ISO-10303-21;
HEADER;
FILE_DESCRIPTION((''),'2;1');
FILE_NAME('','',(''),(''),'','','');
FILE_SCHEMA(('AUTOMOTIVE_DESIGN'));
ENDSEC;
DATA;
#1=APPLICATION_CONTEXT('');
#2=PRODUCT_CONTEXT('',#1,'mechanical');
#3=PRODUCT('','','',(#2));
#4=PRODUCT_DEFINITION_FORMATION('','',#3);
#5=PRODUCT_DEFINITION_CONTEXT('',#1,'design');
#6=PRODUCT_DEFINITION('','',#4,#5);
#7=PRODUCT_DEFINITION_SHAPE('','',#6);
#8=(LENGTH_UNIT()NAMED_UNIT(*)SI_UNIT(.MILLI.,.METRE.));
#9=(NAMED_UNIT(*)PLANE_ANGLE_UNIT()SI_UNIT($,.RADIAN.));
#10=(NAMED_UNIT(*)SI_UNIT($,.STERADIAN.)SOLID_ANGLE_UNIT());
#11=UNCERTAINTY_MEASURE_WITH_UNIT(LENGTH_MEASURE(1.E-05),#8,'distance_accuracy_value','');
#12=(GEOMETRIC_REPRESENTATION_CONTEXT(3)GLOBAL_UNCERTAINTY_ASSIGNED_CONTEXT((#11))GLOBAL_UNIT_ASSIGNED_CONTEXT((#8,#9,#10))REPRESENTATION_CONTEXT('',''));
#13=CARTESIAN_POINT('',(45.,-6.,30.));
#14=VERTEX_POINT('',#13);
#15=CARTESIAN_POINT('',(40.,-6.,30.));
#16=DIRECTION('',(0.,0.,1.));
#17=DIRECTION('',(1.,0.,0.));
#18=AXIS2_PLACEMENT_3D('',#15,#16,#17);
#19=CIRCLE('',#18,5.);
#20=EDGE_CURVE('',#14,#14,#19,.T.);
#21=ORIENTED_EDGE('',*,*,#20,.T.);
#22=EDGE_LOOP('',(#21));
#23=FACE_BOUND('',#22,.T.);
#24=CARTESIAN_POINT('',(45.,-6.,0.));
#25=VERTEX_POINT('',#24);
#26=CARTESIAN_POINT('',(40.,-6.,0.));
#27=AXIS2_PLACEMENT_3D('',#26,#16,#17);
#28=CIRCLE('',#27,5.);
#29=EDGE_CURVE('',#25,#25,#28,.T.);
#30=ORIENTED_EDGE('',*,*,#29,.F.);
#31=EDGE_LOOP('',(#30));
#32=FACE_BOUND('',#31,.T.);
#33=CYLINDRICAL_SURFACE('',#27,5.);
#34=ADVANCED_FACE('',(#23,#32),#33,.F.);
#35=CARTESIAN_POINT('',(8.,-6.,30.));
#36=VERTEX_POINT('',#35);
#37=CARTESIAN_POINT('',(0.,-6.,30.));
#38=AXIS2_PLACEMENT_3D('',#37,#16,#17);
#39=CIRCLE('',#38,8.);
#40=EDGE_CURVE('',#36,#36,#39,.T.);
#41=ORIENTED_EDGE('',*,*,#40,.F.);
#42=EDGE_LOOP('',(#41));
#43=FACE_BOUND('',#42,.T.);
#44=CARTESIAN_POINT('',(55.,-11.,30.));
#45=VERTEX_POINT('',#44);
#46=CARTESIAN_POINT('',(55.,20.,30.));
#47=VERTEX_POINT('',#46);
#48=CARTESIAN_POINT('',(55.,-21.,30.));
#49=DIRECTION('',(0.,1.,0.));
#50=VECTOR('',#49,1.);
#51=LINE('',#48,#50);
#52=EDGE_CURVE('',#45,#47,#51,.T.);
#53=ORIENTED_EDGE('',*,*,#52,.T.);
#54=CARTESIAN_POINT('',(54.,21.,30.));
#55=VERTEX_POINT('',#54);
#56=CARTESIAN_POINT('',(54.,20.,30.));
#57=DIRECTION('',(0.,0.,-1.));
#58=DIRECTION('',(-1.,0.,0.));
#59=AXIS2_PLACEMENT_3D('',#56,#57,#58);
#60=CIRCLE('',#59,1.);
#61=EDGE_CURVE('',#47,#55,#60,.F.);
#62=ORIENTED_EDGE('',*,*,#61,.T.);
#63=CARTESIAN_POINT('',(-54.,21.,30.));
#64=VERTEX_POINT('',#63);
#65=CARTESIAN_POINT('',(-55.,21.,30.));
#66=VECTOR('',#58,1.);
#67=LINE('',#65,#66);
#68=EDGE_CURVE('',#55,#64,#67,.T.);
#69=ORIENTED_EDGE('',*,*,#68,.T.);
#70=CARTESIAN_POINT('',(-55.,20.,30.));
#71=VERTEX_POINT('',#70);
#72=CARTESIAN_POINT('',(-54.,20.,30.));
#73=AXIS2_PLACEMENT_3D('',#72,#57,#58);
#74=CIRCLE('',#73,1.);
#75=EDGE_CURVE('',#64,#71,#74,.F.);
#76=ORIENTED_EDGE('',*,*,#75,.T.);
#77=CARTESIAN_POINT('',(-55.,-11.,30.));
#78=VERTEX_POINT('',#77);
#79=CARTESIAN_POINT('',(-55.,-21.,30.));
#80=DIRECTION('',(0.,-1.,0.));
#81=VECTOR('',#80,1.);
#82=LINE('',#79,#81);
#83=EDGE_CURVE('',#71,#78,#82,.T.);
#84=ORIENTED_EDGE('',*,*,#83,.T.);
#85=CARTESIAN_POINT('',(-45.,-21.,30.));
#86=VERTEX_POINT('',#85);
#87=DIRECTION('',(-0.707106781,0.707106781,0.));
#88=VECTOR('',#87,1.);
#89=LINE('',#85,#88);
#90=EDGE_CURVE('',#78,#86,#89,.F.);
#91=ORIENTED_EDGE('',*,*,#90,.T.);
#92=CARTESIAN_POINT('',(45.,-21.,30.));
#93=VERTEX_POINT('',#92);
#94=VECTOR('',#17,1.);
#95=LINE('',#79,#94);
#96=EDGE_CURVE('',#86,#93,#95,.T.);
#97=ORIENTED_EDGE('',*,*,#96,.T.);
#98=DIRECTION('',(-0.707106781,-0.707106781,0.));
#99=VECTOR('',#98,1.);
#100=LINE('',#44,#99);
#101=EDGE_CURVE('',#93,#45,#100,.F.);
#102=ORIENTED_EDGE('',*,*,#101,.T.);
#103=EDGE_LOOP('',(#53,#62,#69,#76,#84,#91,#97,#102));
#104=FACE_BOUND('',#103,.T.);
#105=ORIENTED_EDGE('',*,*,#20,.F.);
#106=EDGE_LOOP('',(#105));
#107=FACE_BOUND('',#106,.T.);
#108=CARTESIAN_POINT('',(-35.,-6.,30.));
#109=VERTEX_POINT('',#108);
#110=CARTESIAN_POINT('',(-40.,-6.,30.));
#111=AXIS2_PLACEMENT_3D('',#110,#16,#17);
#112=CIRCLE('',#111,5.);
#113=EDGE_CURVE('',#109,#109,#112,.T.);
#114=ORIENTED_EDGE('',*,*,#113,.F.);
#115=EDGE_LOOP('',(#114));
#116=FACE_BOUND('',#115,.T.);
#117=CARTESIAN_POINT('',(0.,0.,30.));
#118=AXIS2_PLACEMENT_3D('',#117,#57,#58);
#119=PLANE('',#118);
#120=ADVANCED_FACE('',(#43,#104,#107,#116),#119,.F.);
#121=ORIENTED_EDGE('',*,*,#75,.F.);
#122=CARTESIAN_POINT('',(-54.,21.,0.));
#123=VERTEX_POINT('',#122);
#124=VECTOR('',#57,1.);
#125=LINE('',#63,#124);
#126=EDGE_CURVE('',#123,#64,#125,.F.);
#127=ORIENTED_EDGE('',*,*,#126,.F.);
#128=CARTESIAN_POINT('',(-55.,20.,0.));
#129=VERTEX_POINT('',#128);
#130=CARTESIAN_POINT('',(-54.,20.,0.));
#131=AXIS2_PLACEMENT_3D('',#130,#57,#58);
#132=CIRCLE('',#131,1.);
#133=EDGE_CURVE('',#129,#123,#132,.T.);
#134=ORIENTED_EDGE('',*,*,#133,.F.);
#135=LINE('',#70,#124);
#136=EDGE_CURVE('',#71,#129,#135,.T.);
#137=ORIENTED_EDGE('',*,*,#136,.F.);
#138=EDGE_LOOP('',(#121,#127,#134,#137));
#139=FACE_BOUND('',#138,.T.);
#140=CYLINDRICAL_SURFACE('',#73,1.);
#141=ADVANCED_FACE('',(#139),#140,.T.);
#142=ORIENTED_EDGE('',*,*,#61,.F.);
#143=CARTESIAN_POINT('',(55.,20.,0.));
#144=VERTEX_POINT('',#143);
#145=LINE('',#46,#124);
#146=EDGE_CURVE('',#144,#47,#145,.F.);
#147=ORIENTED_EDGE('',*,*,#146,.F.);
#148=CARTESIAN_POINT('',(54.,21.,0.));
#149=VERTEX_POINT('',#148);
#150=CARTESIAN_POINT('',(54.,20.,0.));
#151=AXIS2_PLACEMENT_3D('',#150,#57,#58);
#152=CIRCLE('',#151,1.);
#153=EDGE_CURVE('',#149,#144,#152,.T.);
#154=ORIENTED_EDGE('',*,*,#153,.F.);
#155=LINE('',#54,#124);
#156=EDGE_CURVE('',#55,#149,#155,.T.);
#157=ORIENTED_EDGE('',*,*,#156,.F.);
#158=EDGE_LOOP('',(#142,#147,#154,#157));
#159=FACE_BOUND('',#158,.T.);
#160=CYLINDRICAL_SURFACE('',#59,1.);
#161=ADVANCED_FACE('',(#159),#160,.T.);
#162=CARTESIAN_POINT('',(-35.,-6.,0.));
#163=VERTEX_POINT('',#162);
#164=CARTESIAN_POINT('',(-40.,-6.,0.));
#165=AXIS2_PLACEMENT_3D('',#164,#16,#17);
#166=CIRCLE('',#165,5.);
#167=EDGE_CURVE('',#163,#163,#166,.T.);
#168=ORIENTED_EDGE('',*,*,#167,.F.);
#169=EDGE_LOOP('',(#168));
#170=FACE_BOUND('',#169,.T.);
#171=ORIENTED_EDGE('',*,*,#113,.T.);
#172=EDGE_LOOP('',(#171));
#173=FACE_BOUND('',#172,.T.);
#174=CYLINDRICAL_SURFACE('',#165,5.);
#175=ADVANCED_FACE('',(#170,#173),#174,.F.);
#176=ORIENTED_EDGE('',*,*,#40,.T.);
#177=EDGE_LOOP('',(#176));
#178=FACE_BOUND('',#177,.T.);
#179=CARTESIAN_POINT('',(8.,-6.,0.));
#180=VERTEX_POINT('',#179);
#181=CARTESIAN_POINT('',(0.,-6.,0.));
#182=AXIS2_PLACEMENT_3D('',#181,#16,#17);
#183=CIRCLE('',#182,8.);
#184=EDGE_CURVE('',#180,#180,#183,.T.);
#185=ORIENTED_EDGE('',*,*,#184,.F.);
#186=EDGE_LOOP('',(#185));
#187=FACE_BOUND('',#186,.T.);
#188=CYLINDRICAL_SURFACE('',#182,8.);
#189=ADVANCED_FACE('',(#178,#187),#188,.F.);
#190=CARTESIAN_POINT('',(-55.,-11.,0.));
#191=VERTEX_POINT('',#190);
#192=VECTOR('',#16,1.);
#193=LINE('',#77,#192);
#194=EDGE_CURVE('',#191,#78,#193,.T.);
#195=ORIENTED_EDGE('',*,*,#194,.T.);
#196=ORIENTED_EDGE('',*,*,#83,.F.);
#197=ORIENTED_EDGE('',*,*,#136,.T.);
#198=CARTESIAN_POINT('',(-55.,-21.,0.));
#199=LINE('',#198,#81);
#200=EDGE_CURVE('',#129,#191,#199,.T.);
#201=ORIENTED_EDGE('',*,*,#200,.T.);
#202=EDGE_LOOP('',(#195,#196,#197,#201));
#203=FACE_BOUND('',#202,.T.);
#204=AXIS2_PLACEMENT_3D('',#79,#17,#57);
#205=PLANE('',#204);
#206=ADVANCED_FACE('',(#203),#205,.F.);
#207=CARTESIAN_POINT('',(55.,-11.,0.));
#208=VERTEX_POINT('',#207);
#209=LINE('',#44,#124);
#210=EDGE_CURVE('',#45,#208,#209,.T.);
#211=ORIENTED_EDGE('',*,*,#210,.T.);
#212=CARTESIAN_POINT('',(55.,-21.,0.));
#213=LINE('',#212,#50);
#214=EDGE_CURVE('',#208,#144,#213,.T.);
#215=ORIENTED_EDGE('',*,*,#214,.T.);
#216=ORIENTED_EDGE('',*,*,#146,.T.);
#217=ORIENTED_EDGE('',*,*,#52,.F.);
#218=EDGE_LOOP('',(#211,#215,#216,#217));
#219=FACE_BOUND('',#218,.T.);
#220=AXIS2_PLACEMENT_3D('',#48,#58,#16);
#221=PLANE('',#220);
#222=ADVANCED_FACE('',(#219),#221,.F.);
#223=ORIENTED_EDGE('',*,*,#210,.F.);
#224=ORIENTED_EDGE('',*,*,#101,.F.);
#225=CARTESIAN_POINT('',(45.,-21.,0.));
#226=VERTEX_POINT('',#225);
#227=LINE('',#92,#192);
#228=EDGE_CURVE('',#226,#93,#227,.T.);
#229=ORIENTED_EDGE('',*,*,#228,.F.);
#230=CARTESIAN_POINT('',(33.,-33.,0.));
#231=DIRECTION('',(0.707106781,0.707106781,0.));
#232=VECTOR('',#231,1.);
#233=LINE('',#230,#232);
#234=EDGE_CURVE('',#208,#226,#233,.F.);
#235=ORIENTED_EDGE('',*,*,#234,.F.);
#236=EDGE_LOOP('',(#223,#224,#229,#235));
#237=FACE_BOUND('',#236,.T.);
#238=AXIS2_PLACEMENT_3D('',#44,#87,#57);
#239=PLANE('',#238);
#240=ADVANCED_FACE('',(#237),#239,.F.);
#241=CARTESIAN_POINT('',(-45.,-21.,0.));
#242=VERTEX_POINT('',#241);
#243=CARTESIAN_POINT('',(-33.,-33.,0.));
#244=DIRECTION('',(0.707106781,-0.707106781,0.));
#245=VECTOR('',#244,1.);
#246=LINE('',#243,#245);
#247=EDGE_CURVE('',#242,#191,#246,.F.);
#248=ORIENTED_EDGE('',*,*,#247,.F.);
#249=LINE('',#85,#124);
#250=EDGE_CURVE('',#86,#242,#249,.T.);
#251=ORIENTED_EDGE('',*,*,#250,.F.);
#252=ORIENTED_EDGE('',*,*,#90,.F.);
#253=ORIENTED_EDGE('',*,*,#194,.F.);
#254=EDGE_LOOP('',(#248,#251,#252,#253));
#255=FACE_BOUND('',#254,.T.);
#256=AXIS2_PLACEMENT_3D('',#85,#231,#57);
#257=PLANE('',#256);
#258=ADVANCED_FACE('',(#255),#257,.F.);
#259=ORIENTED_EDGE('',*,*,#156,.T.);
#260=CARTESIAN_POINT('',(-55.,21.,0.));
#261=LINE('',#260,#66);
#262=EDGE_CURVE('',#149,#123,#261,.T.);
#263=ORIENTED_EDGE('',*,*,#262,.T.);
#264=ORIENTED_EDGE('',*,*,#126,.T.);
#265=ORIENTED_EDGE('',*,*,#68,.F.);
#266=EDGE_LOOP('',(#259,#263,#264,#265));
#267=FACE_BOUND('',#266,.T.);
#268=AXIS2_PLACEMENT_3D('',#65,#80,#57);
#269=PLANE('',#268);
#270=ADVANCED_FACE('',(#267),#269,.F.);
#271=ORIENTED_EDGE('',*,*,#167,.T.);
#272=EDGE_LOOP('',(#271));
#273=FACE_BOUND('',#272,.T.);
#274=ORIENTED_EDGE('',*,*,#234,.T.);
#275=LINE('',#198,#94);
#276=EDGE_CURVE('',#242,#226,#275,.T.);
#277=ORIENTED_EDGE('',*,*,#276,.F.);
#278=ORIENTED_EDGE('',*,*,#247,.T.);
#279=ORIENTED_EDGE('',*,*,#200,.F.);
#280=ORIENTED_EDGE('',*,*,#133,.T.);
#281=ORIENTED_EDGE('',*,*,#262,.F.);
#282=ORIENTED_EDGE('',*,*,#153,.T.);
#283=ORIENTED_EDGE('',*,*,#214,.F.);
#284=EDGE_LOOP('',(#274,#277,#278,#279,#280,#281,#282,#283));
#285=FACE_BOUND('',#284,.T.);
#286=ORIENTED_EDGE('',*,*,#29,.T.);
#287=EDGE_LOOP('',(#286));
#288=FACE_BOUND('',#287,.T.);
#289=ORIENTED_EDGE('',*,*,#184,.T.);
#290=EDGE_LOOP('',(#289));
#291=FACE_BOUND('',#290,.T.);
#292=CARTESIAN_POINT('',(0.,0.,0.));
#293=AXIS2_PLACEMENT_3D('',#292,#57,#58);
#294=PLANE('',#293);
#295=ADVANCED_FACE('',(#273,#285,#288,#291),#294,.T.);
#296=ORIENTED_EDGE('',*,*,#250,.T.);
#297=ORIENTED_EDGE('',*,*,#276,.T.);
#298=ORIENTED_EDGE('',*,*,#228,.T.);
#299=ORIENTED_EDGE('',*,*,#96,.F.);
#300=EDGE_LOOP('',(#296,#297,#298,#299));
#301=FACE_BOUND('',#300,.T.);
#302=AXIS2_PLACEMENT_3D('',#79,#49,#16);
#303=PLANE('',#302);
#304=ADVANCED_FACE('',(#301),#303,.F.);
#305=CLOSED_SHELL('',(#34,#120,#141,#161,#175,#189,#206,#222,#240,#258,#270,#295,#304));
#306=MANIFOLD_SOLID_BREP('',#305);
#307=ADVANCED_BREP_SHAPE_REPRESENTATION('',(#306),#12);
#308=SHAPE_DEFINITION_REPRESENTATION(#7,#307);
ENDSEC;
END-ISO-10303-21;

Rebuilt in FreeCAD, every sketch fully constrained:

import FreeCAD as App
import Part
import Sketcher

V = App.Vector


def edges_at(feature, points):
    """Names of the edges that pass closest to the given points."""
    edges = feature.Shape.Edges
    near = lambda p: min(range(len(edges)), key=lambda i: edges[i].distToShape(Part.Vertex(*p))[0])
    return sorted({f"Edge{near(p) + 1}" for p in points})

doc = App.newDocument("Part")
params = doc.addObject("Spreadsheet::Sheet", "Params")
for row, (alias, value) in enumerate([
    ("sketch1_width", "110 mm"),
    ("sketch1_height", "42 mm"),
    ("pad1_length", "30 mm"),
    ("chamfer_size", "10 mm"),
    ("fillet_radius", "1 mm"),
    ("sketch2_diameter", "10 mm"),
    ("sketch2_diameter2", "16 mm"),
    ("pocket1_length", "30 mm"),
], start=1):
    params.set(f"A{row}", alias)
    params.set(f"B{row}", "=" + value)
    params.setAlias(f"B{row}", alias)

body = doc.addObject("PartDesign::Body", "Body")

# Sketch on XY plane
sketch1 = body.newObject("Sketcher::SketchObject", "Sketch")
sketch1.AttachmentSupport = (doc.getObject("XY_Plane"), [""])
sketch1.MapMode = "FlatFace"
sketch1.addGeometry(Part.LineSegment(V(-55, 21, 0), V(-55, -21, 0)), False)
sketch1.addGeometry(Part.LineSegment(V(-55, -21, 0), V(55, -21, 0)), False)
sketch1.addGeometry(Part.LineSegment(V(55, -21, 0), V(55, 21, 0)), False)
sketch1.addGeometry(Part.LineSegment(V(55, 21, 0), V(-55, 21, 0)), False)
sketch1.addConstraint(Sketcher.Constraint("Coincident", 0, 2, 1, 1))
sketch1.addConstraint(Sketcher.Constraint("Coincident", 1, 2, 2, 1))
sketch1.addConstraint(Sketcher.Constraint("Coincident", 2, 2, 3, 1))
sketch1.addConstraint(Sketcher.Constraint("Coincident", 3, 2, 0, 1))
sketch1.addConstraint(Sketcher.Constraint("Vertical", 0))
sketch1.addConstraint(Sketcher.Constraint("Horizontal", 1))
sketch1.addConstraint(Sketcher.Constraint("Vertical", 2))
sketch1.addConstraint(Sketcher.Constraint("Horizontal", 3))
sketch1.addConstraint(Sketcher.Constraint("Symmetric", 0, 2, 2, 2, -1, 1))
sketch1.addConstraint(Sketcher.Constraint("DistanceX", 1, 1, 1, 2, 110.0))
sketch1.addConstraint(Sketcher.Constraint("DistanceY", 0, 2, 0, 1, 42.0))
sketch1.setExpression("Constraints[9]", "Params.sketch1_width")
sketch1.setExpression("Constraints[10]", "Params.sketch1_height")
pad1 = body.newObject("PartDesign::Pad", "Pad")
pad1.Profile = sketch1
pad1.setExpression("Length", "Params.pad1_length")
doc.recompute()

chamfer = body.newObject("PartDesign::Chamfer", "Chamfer")
chamfer.Base = (pad1, edges_at(pad1, [(55, -21, 15), (-55, -21, 15)]))
chamfer.setExpression("Size", "Params.chamfer_size")
doc.recompute()

fillet = body.newObject("PartDesign::Fillet", "Fillet")
fillet.Base = (chamfer, edges_at(chamfer, [(-55, 21, 15), (55, 21, 15)]))
fillet.setExpression("Radius", "Params.fillet_radius")

# Sketch on XY plane
sketch2 = body.newObject("Sketcher::SketchObject", "Sketch001")
sketch2.AttachmentSupport = (doc.getObject("XY_Plane"), [""])
sketch2.MapMode = "FlatFace"
sketch2.AttachmentOffset = App.Placement(V(0, 0, 30), App.Rotation())
sketch2.addGeometry(Part.Circle(V(-40, -6, 0), V(0, 0, 1), 5), False)
sketch2.addGeometry(Part.Circle(V(40, -6, 0), V(0, 0, 1), 5), False)
sketch2.addGeometry(Part.Circle(V(0, -6, 0), V(0, 0, 1), 8), False)
sketch2.addConstraint(Sketcher.Constraint("Equal", 0, 1))
sketch2.addConstraint(Sketcher.Constraint("Symmetric", 0, 3, 1, 3, -2))
sketch2.addConstraint(Sketcher.Constraint("PointOnObject", 2, 3, -2))
sketch2.addConstraint(Sketcher.Constraint("Horizontal", 1, 3, 2, 3))
sketch2.addConstraint(Sketcher.Constraint("Diameter", 0, 10.0))
sketch2.addConstraint(Sketcher.Constraint("Diameter", 2, 16.0))
sketch2.addConstraint(Sketcher.Constraint("DistanceX", 0, 3, -1, 1, 40.0))
sketch2.addConstraint(Sketcher.Constraint("DistanceY", 0, 3, -1, 1, 6.0))
sketch2.setExpression("Constraints[4]", "Params.sketch2_diameter")
sketch2.setExpression("Constraints[5]", "Params.sketch2_diameter2")
pocket1 = body.newObject("PartDesign::Pocket", "Pocket")
pocket1.Profile = sketch2
pocket1.setExpression("Length", "Params.pocket1_length")

doc.recompute()
